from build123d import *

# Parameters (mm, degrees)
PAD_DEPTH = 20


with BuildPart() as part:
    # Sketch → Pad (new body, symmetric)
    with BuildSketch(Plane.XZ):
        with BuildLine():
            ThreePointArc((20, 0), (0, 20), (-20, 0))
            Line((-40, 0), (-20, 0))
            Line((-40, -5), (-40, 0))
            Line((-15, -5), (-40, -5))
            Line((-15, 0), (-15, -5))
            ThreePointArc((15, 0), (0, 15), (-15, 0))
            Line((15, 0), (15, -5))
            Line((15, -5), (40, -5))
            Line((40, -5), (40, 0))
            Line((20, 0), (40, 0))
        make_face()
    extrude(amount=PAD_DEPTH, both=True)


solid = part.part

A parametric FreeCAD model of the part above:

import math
import FreeCAD as App
import Part
import Sketcher
from FreeCAD import Vector
Q = App.Units.Quantity

doc = App.newDocument("Part")
params = doc.addObject("Spreadsheet::Sheet", "Params")
for row, (alias, value) in enumerate([
    ("sketch1_radius", "20 mm"),
    ("sketch1_radius2", "15 mm"),
    ("sketch1_width", "20 mm"),
    ("sketch1_height", "5 mm"),
    ("pad1_length", "40 mm"),
], start=1):
    params.set(f"A{row}", alias)
    params.set(f"B{row}", "=" + value)
    params.setAlias(f"B{row}", alias)

body = doc.addObject("PartDesign::Body", "Body")

sketch1 = body.newObject("Sketcher::SketchObject", "Sketch")
sketch1.AttachmentSupport = (doc.getObject("XZ_Plane"), [""])
sketch1.MapMode = "FlatFace"
sketch1.addGeometry([
    Part.ArcOfCircle(Part.Circle(Vector(0, 0, 0), Vector(0, 0, 1), 20), math.radians(0), math.radians(180)),
    Part.LineSegment(Vector(-20, 0, 0), Vector(-40, 0, 0)),
    Part.LineSegment(Vector(-40, 0, 0), Vector(-40, -5, 0)),
    Part.LineSegment(Vector(-40, -5, 0), Vector(-15, -5, 0)),
    Part.LineSegment(Vector(-15, -5, 0), Vector(-15, 0, 0)),
    Part.ArcOfCircle(Part.Circle(Vector(0, 0, 0), Vector(0, 0, 1), 15), math.radians(0), math.radians(180)),
    Part.LineSegment(Vector(15, 0, 0), Vector(15, -5, 0)),
    Part.LineSegment(Vector(15, -5, 0), Vector(40, -5, 0)),
    Part.LineSegment(Vector(40, -5, 0), Vector(40, 0, 0)),
    Part.LineSegment(Vector(40, 0, 0), Vector(20, 0, 0)),
], False)
sketch1.addConstraint([
    Sketcher.Constraint("Coincident", 0, 2, 1, 1),
    Sketcher.Constraint("Coincident", 1, 2, 2, 1),
    Sketcher.Constraint("Coincident", 2, 2, 3, 1),
    Sketcher.Constraint("Coincident", 3, 2, 4, 1),
    Sketcher.Constraint("Tangent", 4, 2, 5, 2),
    Sketcher.Constraint("Tangent", 5, 1, 6, 1),
    Sketcher.Constraint("Coincident", 6, 2, 7, 1),
    Sketcher.Constraint("Coincident", 7, 2, 8, 1),
    Sketcher.Constraint("Coincident", 8, 2, 9, 1),
    Sketcher.Constraint("Coincident", 9, 2, 0, 1),
    Sketcher.Constraint("Horizontal", 1),
    Sketcher.Constraint("Vertical", 2),
    Sketcher.Constraint("Horizontal", 3),
    Sketcher.Constraint("Vertical", 4),
    Sketcher.Constraint("Vertical", 6),
    Sketcher.Constraint("Horizontal", 7),
    Sketcher.Constraint("Vertical", 8),
    Sketcher.Constraint("Horizontal", 9),
    Sketcher.Constraint("Coincident", 0, 3, -1, 1),
    Sketcher.Constraint("Coincident", 5, 3, -1, 1),
    Sketcher.Constraint("Symmetric", 1, 2, 8, 2, -1, 1),
    Sketcher.Constraint("PointOnObject", 0, 2, -1),
    Sketcher.Constraint("Horizontal", 3, 2, 6, 2),
    Sketcher.Constraint("Radius", 0, Q("20 mm")),
    Sketcher.Constraint("Radius", 5, Q("15 mm")),
    Sketcher.Constraint("DistanceX", 1, 2, 1, 1, Q("20 mm")),
    Sketcher.Constraint("DistanceY", 2, 2, 2, 1, Q("5 mm")),
])
sketch1.setExpression("Constraints[23]", "Params.sketch1_radius")
sketch1.setExpression("Constraints[24]", "Params.sketch1_radius2")
sketch1.setExpression("Constraints[25]", "Params.sketch1_width")
sketch1.setExpression("Constraints[26]", "Params.sketch1_height")
pad1 = body.newObject("PartDesign::Pad", "Pad")
pad1.Profile = sketch1
pad1.setExpression("Length", "Params.pad1_length")
pad1.Midplane = True

doc.recompute()
